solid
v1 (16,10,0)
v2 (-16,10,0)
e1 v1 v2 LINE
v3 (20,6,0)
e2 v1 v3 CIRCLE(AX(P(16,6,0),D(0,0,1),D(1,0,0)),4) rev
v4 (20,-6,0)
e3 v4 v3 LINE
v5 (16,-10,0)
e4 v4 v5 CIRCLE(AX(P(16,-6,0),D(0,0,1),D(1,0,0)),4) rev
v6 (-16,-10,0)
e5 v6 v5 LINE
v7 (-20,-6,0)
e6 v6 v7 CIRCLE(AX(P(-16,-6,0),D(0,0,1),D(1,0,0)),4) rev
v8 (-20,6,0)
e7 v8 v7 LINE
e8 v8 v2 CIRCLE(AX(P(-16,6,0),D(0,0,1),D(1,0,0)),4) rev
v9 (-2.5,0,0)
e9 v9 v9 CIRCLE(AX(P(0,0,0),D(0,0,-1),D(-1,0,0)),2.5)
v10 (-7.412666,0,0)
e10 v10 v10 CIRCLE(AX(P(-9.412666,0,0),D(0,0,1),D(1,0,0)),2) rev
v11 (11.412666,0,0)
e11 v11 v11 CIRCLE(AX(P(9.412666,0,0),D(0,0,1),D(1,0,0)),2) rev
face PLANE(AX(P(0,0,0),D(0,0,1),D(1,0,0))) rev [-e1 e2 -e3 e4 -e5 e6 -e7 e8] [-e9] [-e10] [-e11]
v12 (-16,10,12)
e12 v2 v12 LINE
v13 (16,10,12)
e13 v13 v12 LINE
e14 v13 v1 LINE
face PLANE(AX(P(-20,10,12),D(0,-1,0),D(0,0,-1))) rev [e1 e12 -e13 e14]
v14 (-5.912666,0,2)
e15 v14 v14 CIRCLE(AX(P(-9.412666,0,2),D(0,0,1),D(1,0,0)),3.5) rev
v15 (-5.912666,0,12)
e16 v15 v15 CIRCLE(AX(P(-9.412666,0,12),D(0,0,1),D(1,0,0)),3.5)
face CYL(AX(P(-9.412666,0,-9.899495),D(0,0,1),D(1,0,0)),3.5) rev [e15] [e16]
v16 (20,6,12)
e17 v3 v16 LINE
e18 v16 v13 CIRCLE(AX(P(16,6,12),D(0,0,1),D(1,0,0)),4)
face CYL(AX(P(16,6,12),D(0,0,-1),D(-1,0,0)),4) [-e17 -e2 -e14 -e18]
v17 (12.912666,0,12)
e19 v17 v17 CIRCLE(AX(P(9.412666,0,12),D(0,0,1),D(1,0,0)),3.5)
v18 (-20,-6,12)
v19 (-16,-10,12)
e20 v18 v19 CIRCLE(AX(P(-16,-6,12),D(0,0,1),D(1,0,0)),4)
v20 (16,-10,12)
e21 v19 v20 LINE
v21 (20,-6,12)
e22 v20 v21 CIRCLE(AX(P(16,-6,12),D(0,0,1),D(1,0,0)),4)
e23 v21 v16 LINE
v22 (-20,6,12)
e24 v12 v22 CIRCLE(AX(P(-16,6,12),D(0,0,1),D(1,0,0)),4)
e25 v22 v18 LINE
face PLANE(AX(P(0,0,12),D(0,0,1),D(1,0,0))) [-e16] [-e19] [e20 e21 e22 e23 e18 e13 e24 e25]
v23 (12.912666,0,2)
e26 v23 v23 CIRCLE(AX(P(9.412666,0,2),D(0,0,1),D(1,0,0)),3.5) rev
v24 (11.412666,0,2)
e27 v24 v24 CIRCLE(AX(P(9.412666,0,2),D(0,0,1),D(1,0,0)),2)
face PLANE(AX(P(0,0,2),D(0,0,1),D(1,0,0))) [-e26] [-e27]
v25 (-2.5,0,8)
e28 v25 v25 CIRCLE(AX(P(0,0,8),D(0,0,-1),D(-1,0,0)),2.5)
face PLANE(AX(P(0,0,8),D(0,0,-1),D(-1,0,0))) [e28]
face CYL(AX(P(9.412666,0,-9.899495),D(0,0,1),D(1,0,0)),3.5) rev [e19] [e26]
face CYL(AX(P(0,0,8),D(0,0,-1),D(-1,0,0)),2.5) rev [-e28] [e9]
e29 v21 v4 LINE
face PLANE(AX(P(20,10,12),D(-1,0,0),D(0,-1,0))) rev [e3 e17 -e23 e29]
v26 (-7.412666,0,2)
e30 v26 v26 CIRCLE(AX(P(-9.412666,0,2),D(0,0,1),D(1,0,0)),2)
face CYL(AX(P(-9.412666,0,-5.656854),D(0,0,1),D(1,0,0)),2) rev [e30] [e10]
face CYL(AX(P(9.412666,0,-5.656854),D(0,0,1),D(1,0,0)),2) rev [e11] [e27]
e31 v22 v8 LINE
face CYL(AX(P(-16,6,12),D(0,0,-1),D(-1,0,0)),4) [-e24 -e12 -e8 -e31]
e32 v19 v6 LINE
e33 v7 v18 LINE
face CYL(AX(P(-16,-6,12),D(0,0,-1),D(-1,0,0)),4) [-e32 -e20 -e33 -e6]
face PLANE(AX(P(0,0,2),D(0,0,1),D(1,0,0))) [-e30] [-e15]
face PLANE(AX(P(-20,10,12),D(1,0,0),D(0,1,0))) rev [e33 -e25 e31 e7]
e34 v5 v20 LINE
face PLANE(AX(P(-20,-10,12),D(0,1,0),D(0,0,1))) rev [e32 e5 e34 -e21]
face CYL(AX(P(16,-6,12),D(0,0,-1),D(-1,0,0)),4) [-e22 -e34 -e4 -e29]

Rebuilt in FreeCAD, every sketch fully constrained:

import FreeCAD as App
import Part
import Sketcher
from FreeCAD import Vector
Q = App.Units.Quantity


def edges_at(feature, points):
    """Names of the edges that pass closest to the given points."""
    edges = feature.Shape.Edges
    near = lambda p: min(range(len(edges)), key=lambda i: edges[i].distToShape(Part.Vertex(*p))[0])
    return sorted({f"Edge{near(p) + 1}" for p in points})


def add_polygon(sketch, points):
    """Adds a closed chain of lines whose ends are joined by coincident constraints."""
    first, n = sketch.GeometryCount, len(points)
    for a, b in zip(points, points[1:] + points[:1]):
        sketch.addGeometry(Part.LineSegment(App.Vector(*a, 0), App.Vector(*b, 0)), False)
    for i in range(n):
        sketch.addConstraint(Sketcher.Constraint("Coincident", first + i, 2, first + (i + 1) % n, 1))

doc = App.newDocument("Part")
params = doc.addObject("Spreadsheet::Sheet", "Params")
for row, (alias, value) in enumerate([
    ("sketch1_width", "40 mm"),
    ("sketch1_height", "20 mm"),
    ("pad1_length", "12 mm"),
    ("fillet_radius", "4 mm"),
    ("sketch2_diameter", "5 mm"),
    ("pocket1_length", "8 mm"),
    ("sketch3_diameter", "7 mm"),
    ("pocket2_length", "10 mm"),
    ("sketch4_diameter", "4 mm"),
    ("pocket3_length", "2 mm"),
], start=1):
    params.set(f"A{row}", alias)
    params.set(f"B{row}", "=" + value)
    params.setAlias(f"B{row}", alias)

body = doc.addObject("PartDesign::Body", "Body")

# Sketch on XY plane
sketch1 = body.newObject("Sketcher::SketchObject", "Sketch")
sketch1.AttachmentSupport = (doc.getObject("XY_Plane"), [""])
sketch1.MapMode = "FlatFace"
add_polygon(sketch1, [(-20, 10), (-20, -10), (20, -10), (20, 10)])  # lines 0-3
sketch1.addConstraint(Sketcher.Constraint("Vertical", 0))
sketch1.addConstraint(Sketcher.Constraint("Horizontal", 1))
sketch1.addConstraint(Sketcher.Constraint("Vertical", 2))
sketch1.addConstraint(Sketcher.Constraint("Horizontal", 3))
sketch1.addConstraint(Sketcher.Constraint("Symmetric", 0, 2, 2, 2, -1, 1))
sketch1.addConstraint(Sketcher.Constraint("DistanceX", 1, 1, 1, 2, Q("40 mm")))
sketch1.addConstraint(Sketcher.Constraint("DistanceY", 0, 2, 0, 1, Q("20 mm")))
sketch1.setExpression("Constraints[9]", "Params.sketch1_width")
sketch1.setExpression("Constraints[10]", "Params.sketch1_height")
pad1 = body.newObject("PartDesign::Pad", "Pad")
pad1.Profile = sketch1
pad1.setExpression("Length", "Params.pad1_length")
doc.recompute()

fillet = body.newObject("PartDesign::Fillet", "Fillet")
fillet.Base = (pad1, edges_at(pad1, [
    (20, -10, 6),
    (-20, -10, 6),
    (-20, 10, 6),
    (20, 10, 6),
]))
fillet.setExpression("Radius", "Params.fillet_radius")

# Sketch on XY plane
sketch2 = body.newObject("Sketcher::SketchObject", "Sketch001")
sketch2.AttachmentSupport = (doc.getObject("XY_Plane"), [""])
sketch2.MapMode = "FlatFace"
sketch2.addGeometry(Part.Circle(Vector(0, 0, 0), Vector(0, 0, 1), 2.5), False)
sketch2.addConstraint(Sketcher.Constraint("Coincident", 0, 3, -1, 1))
sketch2.addConstraint(Sketcher.Constraint("Diameter", 0, Q("5 mm")))
sketch2.setExpression("Constraints[1]", "Params.sketch2_diameter")
pocket1 = body.newObject("PartDesign::Pocket", "Pocket")
pocket1.Profile = sketch2
pocket1.setExpression("Length", "Params.pocket1_length")
pocket1.Reversed = True

# Sketch on XY plane
sketch3 = body.newObject("Sketcher::SketchObject", "Sketch002")
sketch3.AttachmentSupport = (doc.getObject("XY_Plane"), [""])
sketch3.MapMode = "FlatFace"
sketch3.AttachmentOffset = App.Placement(Vector(0, 0, 12), App.Rotation())
sketch3.addGeometry(Part.Circle(Vector(-9.412666, 0, 0), Vector(0, 0, 1), 3.5), False)
sketch3.addGeometry(Part.Circle(Vector(9.412666, 0, 0), Vector(0, 0, 1), 3.5), False)
sketch3.addConstraint(Sketcher.Constraint("Equal", 0, 1))
sketch3.addConstraint(Sketcher.Constraint("Symmetric", 0, 3, 1, 3, -1, 1))
sketch3.addConstraint(Sketcher.Constraint("PointOnObject", 0, 3, -1))
sketch3.addConstraint(Sketcher.Constraint("Diameter", 0, Q("7 mm")))
sketch3.addConstraint(Sketcher.Constraint("DistanceX", 0, 3, 1, 3, Q("18.825331 mm")))
sketch3.setExpression("Constraints[3]", "Params.sketch3_diameter")
pocket2 = body.newObject("PartDesign::Pocket", "Pocket001")
pocket2.Profile = sketch3
pocket2.setExpression("Length", "Params.pocket2_length")

# Sketch on XY plane
sketch4 = body.newObject("Sketcher::SketchObject", "Sketch003")
sketch4.AttachmentSupport = (doc.getObject("XY_Plane"), [""])
sketch4.MapMode = "FlatFace"
sketch4.AttachmentOffset = App.Placement(Vector(0, 0, 2), App.Rotation())
sketch4.addGeometry(Part.Circle(Vector(-9.412666, 0, 0), Vector(0, 0, 1), 2), False)
sketch4.addGeometry(Part.Circle(Vector(9.412666, 0, 0), Vector(0, 0, 1), 2), False)
sketch4.addConstraint(Sketcher.Constraint("Equal", 0, 1))
sketch4.addConstraint(Sketcher.Constraint("Symmetric", 0, 3, 1, 3, -1, 1))
sketch4.addConstraint(Sketcher.Constraint("PointOnObject", 0, 3, -1))
sketch4.addConstraint(Sketcher.Constraint("Diameter", 0, Q("4 mm")))
sketch4.addConstraint(Sketcher.Constraint("DistanceX", 0, 3, 1, 3, Q("18.825331 mm")))
sketch4.setExpression("Constraints[3]", "Params.sketch4_diameter")
pocket3 = body.newObject("PartDesign::Pocket", "Pocket002")
pocket3.Profile = sketch4
pocket3.setExpression("Length", "Params.pocket3_length")

doc.recompute()
